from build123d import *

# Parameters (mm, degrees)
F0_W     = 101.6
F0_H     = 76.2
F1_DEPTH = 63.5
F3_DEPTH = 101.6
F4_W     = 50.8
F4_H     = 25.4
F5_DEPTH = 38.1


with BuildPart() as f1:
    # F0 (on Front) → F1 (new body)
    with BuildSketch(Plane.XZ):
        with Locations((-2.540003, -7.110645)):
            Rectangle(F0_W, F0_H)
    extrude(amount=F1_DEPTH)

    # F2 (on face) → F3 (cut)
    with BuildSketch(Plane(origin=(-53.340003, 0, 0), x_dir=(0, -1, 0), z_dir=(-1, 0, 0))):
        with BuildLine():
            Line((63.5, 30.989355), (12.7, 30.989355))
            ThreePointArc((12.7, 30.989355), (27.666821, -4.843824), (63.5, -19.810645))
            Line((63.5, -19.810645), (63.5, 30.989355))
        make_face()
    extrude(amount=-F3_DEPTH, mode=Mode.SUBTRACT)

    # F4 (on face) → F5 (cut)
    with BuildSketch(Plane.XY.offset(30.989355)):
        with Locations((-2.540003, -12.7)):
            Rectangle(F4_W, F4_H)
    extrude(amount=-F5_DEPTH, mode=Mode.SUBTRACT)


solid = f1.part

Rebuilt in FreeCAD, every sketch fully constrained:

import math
import FreeCAD as App
import Part
import Sketcher
Q = App.Units.Quantity


def add_polygon(sketch, points):
    """Adds a closed chain of lines whose ends are joined by coincident constraints."""
    first, n = sketch.GeometryCount, len(points)
    for a, b in zip(points, points[1:] + points[:1]):
        sketch.addGeometry(Part.LineSegment(App.Vector(*a, 0), App.Vector(*b, 0)), False)
    for i in range(n):
        sketch.addConstraint(Sketcher.Constraint("Coincident", first + i, 2, first + (i + 1) % n, 1))

doc = App.newDocument("Part")
body = doc.addObject("PartDesign::Body", "Body")

# Sketch on XZ plane
sketch1 = body.newObject("Sketcher::SketchObject", "Sketch")
sketch1.AttachmentSupport = (doc.getObject("XZ_Plane"), [""])
sketch1.MapMode = "FlatFace"
add_polygon(sketch1, [(-53, 31), (-53, -45), (48, -45), (48, 31)])  # lines 0-3
sketch1.addConstraint(Sketcher.Constraint("Vertical", 0))
sketch1.addConstraint(Sketcher.Constraint("Horizontal", 1))
sketch1.addConstraint(Sketcher.Constraint("Vertical", 2))
sketch1.addConstraint(Sketcher.Constraint("Horizontal", 3))
sketch1.addConstraint(Sketcher.Constraint("DistanceX", 1, 1, 1, 2, Q("4 in")))
sketch1.addConstraint(Sketcher.Constraint("DistanceY", 0, 2, 0, 1, Q("3 in")))
sketch1.addConstraint(Sketcher.Constraint("DistanceX", 0, 2, -1, 1, Q("2.1000001 in")))
sketch1.addConstraint(Sketcher.Constraint("DistanceY", 0, 2, -1, 1, Q("45.210645 mm")))
pad1 = body.newObject("PartDesign::Pad", "Pad")
pad1.Profile = sketch1
pad1.Length = Q("2.5 in")

# Sketch on YZ plane
sketch2 = body.newObject("Sketcher::SketchObject", "Sketch001")
sketch2.AttachmentSupport = (doc.getObject("YZ_Plane"), [""])
sketch2.MapMode = "FlatFace"
sketch2.AttachmentOffset = App.Placement(App.Vector(0, 0, -2.1000001 * 25.4), App.Rotation())
sketch2.addGeometry(Part.LineSegment(App.Vector(-64, 31, 0), App.Vector(-13, 31, 0)), False)
sketch2.addGeometry(Part.ArcOfCircle(Part.Circle(App.Vector(-64, 31, 0), App.Vector(0, 0, 1), 51), math.radians(-90), math.radians(0)), False)
sketch2.addGeometry(Part.LineSegment(App.Vector(-64, -20, 0), App.Vector(-64, 31, 0)), False)
sketch2.addConstraint(Sketcher.Constraint("Coincident", 0, 2, 1, 2))
sketch2.addConstraint(Sketcher.Constraint("Coincident", 1, 1, 2, 1))
sketch2.addConstraint(Sketcher.Constraint("Coincident", 2, 2, 0, 1))
sketch2.addConstraint(Sketcher.Constraint("Horizontal", 0))
sketch2.addConstraint(Sketcher.Constraint("Vertical", 2))
sketch2.addConstraint(Sketcher.Constraint("Equal", 0, 2))
sketch2.addConstraint(Sketcher.Constraint("DistanceX", 0, 1, 0, 2, Q("2 in")))
sketch2.addConstraint(Sketcher.Constraint("DistanceX", 0, 2, -1, 1, Q("0.5 in")))
sketch2.addConstraint(Sketcher.Constraint("Radius", 1, Q("51.102972 mm")))
sketch2.addConstraint(Sketcher.Constraint("DistanceY", -1, 1, 1, 3, Q("31.291434 mm")))
pocket1 = body.newObject("PartDesign::Pocket", "Pocket")
pocket1.Profile = sketch2
pocket1.Length = Q("4 in")
pocket1.Reversed = True

# Sketch on XY plane
sketch3 = body.newObject("Sketcher::SketchObject", "Sketch002")
sketch3.AttachmentSupport = (doc.getObject("XY_Plane"), [""])
sketch3.MapMode = "FlatFace"
sketch3.AttachmentOffset = App.Placement(App.Vector(0, 0, 30.989355), App.Rotation())
add_polygon(sketch3, [(-28, 0), (-28, -25), (23, -25), (23, 0)])  # lines 0-3
sketch3.addConstraint(Sketcher.Constraint("Vertical", 0))
sketch3.addConstraint(Sketcher.Constraint("Horizontal", 1))
sketch3.addConstraint(Sketcher.Constraint("Vertical", 2))
sketch3.addConstraint(Sketcher.Constraint("Horizontal", 3))
sketch3.addConstraint(Sketcher.Constraint("PointOnObject", 2, 2, -1))
sketch3.addConstraint(Sketcher.Constraint("DistanceX", 1, 1, 1, 2, Q("2 in")))
sketch3.addConstraint(Sketcher.Constraint("DistanceY", 0, 2, 0, 1, Q("1 in")))
sketch3.addConstraint(Sketcher.Constraint("DistanceX", 0, 2, -1, 1, Q("1.1000001 in")))
pocket2 = body.newObject("PartDesign::Pocket", "Pocket001")
pocket2.Profile = sketch3
pocket2.Length = Q("1.5 in")

doc.recompute()
